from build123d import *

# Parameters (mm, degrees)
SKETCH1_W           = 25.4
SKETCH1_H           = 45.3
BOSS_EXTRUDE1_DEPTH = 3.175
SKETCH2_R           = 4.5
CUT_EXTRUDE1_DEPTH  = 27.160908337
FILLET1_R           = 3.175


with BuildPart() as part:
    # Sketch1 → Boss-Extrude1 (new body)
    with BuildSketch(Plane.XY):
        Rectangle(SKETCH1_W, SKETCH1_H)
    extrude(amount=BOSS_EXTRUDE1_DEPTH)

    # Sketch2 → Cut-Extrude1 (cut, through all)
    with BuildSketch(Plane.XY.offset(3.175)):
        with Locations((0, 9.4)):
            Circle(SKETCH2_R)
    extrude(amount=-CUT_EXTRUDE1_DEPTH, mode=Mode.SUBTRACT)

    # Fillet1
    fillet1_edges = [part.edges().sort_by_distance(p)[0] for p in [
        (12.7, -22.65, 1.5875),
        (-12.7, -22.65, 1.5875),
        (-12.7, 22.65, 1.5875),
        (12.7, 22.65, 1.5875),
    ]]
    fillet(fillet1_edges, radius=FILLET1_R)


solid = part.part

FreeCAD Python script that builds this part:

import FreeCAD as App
import Part
import Sketcher
Q = App.Units.Quantity


def edges_at(feature, points):
    """Names of the edges that pass closest to the given points."""
    edges = feature.Shape.Edges
    near = lambda p: min(range(len(edges)), key=lambda i: edges[i].distToShape(Part.Vertex(*p))[0])
    return sorted({f"Edge{near(p) + 1}" for p in points})


def add_polygon(sketch, points):
    """Adds a closed chain of lines whose ends are joined by coincident constraints."""
    first, n = sketch.GeometryCount, len(points)
    for a, b in zip(points, points[1:] + points[:1]):
        sketch.addGeometry(Part.LineSegment(App.Vector(*a, 0), App.Vector(*b, 0)), False)
    for i in range(n):
        sketch.addConstraint(Sketcher.Constraint("Coincident", first + i, 2, first + (i + 1) % n, 1))

doc = App.newDocument("Part")
body = doc.addObject("PartDesign::Body", "Body")

sketch1 = doc.addObject("Sketcher::SketchObject", "Sketch")
body.addObject(sketch1)
sketch1.AttachmentSupport = (doc.XY_Plane, [""])
sketch1.MapMode = "FlatFace"
add_polygon(sketch1, [(-13, 23), (-13, -23), (13, -23), (13, 23)])
sketch1.addConstraint([
    Sketcher.Constraint("Vertical", 0),
    Sketcher.Constraint("Horizontal", 1),
    Sketcher.Constraint("Vertical", 2),
    Sketcher.Constraint("Horizontal", 3),
    Sketcher.Constraint("Symmetric", 0, 2, 2, 2, -1, 1),
    Sketcher.Constraint("DistanceX", 1, 1, 1, 2, Q("25.4 mm")),
    Sketcher.Constraint("DistanceY", 0, 2, 0, 1, Q("45.3 mm")),
])
pad1 = doc.addObject("PartDesign::Pad", "Pad")
body.addObject(pad1)
pad1.Profile = sketch1
pad1.Length = 3.175

sketch2 = doc.addObject("Sketcher::SketchObject", "Sketch001")
body.addObject(sketch2)
sketch2.AttachmentSupport = (doc.XY_Plane, [""])
sketch2.MapMode = "FlatFace"
sketch2.AttachmentOffset = App.Placement(App.Vector(0, 0, 3.175), App.Rotation())
sketch2.addGeometry(Part.Circle(App.Vector(0, 9.4, 0), App.Vector(0, 0, 1), 4.5), False)
sketch2.addConstraint([
    Sketcher.Constraint("PointOnObject", 0, 3, -2),
    Sketcher.Constraint("Diameter", 0, Q("9 mm")),
    Sketcher.Constraint("DistanceY", -1, 1, 0, 3, Q("9.4 mm")),
])
pocket1 = doc.addObject("PartDesign::Pocket", "Pocket")
body.addObject(pocket1)
pocket1.Profile = sketch2
pocket1.Type = "ThroughAll"
doc.recompute()

fillet = doc.addObject("PartDesign::Fillet", "Fillet")
body.addObject(fillet)
fillet.Base = (pocket1, edges_at(pocket1, [
    (12.7, -22.65, 1.587),
    (-12.7, -22.65, 1.587),
    (-12.7, 22.65, 1.587),
    (12.7, 22.65, 1.587),
]))
fillet.Radius = 3.175

doc.recompute()
